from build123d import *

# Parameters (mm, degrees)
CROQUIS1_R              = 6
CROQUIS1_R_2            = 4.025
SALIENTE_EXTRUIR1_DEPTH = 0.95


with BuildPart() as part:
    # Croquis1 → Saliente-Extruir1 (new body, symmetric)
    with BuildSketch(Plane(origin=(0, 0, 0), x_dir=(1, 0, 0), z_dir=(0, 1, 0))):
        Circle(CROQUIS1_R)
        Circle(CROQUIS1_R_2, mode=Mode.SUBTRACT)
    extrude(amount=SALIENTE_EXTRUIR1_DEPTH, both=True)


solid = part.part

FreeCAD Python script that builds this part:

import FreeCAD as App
import Part
import Sketcher
Q = App.Units.Quantity

doc = App.newDocument("Part")
params = doc.addObject("Spreadsheet::Sheet", "Params")
for row, (alias, value) in enumerate([
    ("sketch1_diameter", "12 mm"),
    ("sketch1_diameter2", "8.05 mm"),
    ("pad1_length", "1.9 mm"),
], start=1):
    params.set(f"A{row}", alias)
    params.set(f"B{row}", "=" + value)
    params.setAlias(f"B{row}", alias)

body = doc.addObject("PartDesign::Body", "Body")

# Sketch on XZ plane
sketch1 = body.newObject("Sketcher::SketchObject", "Sketch")
sketch1.AttachmentSupport = (doc.getObject("XZ_Plane"), [""])
sketch1.MapMode = "FlatFace"
sketch1.addGeometry(Part.Circle(App.Vector(0, 0, 0), App.Vector(0, 0, 1), 6), False)
sketch1.addGeometry(Part.Circle(App.Vector(0, 0, 0), App.Vector(0, 0, 1), 4.025), False)
sketch1.addConstraint(Sketcher.Constraint("Coincident", 0, 3, -1, 1))
sketch1.addConstraint(Sketcher.Constraint("Coincident", 1, 3, -1, 1))
sketch1.addConstraint(Sketcher.Constraint("Diameter", 0, Q("12 mm")))
sketch1.addConstraint(Sketcher.Constraint("Diameter", 1, Q("8.05 mm")))
sketch1.setExpression("Constraints[2]", "Params.sketch1_diameter")
sketch1.setExpression("Constraints[3]", "Params.sketch1_diameter2")
pad1 = body.newObject("PartDesign::Pad", "Pad")
pad1.Profile = sketch1
pad1.setExpression("Length", "Params.pad1_length")
pad1.Midplane = True

doc.recompute()
